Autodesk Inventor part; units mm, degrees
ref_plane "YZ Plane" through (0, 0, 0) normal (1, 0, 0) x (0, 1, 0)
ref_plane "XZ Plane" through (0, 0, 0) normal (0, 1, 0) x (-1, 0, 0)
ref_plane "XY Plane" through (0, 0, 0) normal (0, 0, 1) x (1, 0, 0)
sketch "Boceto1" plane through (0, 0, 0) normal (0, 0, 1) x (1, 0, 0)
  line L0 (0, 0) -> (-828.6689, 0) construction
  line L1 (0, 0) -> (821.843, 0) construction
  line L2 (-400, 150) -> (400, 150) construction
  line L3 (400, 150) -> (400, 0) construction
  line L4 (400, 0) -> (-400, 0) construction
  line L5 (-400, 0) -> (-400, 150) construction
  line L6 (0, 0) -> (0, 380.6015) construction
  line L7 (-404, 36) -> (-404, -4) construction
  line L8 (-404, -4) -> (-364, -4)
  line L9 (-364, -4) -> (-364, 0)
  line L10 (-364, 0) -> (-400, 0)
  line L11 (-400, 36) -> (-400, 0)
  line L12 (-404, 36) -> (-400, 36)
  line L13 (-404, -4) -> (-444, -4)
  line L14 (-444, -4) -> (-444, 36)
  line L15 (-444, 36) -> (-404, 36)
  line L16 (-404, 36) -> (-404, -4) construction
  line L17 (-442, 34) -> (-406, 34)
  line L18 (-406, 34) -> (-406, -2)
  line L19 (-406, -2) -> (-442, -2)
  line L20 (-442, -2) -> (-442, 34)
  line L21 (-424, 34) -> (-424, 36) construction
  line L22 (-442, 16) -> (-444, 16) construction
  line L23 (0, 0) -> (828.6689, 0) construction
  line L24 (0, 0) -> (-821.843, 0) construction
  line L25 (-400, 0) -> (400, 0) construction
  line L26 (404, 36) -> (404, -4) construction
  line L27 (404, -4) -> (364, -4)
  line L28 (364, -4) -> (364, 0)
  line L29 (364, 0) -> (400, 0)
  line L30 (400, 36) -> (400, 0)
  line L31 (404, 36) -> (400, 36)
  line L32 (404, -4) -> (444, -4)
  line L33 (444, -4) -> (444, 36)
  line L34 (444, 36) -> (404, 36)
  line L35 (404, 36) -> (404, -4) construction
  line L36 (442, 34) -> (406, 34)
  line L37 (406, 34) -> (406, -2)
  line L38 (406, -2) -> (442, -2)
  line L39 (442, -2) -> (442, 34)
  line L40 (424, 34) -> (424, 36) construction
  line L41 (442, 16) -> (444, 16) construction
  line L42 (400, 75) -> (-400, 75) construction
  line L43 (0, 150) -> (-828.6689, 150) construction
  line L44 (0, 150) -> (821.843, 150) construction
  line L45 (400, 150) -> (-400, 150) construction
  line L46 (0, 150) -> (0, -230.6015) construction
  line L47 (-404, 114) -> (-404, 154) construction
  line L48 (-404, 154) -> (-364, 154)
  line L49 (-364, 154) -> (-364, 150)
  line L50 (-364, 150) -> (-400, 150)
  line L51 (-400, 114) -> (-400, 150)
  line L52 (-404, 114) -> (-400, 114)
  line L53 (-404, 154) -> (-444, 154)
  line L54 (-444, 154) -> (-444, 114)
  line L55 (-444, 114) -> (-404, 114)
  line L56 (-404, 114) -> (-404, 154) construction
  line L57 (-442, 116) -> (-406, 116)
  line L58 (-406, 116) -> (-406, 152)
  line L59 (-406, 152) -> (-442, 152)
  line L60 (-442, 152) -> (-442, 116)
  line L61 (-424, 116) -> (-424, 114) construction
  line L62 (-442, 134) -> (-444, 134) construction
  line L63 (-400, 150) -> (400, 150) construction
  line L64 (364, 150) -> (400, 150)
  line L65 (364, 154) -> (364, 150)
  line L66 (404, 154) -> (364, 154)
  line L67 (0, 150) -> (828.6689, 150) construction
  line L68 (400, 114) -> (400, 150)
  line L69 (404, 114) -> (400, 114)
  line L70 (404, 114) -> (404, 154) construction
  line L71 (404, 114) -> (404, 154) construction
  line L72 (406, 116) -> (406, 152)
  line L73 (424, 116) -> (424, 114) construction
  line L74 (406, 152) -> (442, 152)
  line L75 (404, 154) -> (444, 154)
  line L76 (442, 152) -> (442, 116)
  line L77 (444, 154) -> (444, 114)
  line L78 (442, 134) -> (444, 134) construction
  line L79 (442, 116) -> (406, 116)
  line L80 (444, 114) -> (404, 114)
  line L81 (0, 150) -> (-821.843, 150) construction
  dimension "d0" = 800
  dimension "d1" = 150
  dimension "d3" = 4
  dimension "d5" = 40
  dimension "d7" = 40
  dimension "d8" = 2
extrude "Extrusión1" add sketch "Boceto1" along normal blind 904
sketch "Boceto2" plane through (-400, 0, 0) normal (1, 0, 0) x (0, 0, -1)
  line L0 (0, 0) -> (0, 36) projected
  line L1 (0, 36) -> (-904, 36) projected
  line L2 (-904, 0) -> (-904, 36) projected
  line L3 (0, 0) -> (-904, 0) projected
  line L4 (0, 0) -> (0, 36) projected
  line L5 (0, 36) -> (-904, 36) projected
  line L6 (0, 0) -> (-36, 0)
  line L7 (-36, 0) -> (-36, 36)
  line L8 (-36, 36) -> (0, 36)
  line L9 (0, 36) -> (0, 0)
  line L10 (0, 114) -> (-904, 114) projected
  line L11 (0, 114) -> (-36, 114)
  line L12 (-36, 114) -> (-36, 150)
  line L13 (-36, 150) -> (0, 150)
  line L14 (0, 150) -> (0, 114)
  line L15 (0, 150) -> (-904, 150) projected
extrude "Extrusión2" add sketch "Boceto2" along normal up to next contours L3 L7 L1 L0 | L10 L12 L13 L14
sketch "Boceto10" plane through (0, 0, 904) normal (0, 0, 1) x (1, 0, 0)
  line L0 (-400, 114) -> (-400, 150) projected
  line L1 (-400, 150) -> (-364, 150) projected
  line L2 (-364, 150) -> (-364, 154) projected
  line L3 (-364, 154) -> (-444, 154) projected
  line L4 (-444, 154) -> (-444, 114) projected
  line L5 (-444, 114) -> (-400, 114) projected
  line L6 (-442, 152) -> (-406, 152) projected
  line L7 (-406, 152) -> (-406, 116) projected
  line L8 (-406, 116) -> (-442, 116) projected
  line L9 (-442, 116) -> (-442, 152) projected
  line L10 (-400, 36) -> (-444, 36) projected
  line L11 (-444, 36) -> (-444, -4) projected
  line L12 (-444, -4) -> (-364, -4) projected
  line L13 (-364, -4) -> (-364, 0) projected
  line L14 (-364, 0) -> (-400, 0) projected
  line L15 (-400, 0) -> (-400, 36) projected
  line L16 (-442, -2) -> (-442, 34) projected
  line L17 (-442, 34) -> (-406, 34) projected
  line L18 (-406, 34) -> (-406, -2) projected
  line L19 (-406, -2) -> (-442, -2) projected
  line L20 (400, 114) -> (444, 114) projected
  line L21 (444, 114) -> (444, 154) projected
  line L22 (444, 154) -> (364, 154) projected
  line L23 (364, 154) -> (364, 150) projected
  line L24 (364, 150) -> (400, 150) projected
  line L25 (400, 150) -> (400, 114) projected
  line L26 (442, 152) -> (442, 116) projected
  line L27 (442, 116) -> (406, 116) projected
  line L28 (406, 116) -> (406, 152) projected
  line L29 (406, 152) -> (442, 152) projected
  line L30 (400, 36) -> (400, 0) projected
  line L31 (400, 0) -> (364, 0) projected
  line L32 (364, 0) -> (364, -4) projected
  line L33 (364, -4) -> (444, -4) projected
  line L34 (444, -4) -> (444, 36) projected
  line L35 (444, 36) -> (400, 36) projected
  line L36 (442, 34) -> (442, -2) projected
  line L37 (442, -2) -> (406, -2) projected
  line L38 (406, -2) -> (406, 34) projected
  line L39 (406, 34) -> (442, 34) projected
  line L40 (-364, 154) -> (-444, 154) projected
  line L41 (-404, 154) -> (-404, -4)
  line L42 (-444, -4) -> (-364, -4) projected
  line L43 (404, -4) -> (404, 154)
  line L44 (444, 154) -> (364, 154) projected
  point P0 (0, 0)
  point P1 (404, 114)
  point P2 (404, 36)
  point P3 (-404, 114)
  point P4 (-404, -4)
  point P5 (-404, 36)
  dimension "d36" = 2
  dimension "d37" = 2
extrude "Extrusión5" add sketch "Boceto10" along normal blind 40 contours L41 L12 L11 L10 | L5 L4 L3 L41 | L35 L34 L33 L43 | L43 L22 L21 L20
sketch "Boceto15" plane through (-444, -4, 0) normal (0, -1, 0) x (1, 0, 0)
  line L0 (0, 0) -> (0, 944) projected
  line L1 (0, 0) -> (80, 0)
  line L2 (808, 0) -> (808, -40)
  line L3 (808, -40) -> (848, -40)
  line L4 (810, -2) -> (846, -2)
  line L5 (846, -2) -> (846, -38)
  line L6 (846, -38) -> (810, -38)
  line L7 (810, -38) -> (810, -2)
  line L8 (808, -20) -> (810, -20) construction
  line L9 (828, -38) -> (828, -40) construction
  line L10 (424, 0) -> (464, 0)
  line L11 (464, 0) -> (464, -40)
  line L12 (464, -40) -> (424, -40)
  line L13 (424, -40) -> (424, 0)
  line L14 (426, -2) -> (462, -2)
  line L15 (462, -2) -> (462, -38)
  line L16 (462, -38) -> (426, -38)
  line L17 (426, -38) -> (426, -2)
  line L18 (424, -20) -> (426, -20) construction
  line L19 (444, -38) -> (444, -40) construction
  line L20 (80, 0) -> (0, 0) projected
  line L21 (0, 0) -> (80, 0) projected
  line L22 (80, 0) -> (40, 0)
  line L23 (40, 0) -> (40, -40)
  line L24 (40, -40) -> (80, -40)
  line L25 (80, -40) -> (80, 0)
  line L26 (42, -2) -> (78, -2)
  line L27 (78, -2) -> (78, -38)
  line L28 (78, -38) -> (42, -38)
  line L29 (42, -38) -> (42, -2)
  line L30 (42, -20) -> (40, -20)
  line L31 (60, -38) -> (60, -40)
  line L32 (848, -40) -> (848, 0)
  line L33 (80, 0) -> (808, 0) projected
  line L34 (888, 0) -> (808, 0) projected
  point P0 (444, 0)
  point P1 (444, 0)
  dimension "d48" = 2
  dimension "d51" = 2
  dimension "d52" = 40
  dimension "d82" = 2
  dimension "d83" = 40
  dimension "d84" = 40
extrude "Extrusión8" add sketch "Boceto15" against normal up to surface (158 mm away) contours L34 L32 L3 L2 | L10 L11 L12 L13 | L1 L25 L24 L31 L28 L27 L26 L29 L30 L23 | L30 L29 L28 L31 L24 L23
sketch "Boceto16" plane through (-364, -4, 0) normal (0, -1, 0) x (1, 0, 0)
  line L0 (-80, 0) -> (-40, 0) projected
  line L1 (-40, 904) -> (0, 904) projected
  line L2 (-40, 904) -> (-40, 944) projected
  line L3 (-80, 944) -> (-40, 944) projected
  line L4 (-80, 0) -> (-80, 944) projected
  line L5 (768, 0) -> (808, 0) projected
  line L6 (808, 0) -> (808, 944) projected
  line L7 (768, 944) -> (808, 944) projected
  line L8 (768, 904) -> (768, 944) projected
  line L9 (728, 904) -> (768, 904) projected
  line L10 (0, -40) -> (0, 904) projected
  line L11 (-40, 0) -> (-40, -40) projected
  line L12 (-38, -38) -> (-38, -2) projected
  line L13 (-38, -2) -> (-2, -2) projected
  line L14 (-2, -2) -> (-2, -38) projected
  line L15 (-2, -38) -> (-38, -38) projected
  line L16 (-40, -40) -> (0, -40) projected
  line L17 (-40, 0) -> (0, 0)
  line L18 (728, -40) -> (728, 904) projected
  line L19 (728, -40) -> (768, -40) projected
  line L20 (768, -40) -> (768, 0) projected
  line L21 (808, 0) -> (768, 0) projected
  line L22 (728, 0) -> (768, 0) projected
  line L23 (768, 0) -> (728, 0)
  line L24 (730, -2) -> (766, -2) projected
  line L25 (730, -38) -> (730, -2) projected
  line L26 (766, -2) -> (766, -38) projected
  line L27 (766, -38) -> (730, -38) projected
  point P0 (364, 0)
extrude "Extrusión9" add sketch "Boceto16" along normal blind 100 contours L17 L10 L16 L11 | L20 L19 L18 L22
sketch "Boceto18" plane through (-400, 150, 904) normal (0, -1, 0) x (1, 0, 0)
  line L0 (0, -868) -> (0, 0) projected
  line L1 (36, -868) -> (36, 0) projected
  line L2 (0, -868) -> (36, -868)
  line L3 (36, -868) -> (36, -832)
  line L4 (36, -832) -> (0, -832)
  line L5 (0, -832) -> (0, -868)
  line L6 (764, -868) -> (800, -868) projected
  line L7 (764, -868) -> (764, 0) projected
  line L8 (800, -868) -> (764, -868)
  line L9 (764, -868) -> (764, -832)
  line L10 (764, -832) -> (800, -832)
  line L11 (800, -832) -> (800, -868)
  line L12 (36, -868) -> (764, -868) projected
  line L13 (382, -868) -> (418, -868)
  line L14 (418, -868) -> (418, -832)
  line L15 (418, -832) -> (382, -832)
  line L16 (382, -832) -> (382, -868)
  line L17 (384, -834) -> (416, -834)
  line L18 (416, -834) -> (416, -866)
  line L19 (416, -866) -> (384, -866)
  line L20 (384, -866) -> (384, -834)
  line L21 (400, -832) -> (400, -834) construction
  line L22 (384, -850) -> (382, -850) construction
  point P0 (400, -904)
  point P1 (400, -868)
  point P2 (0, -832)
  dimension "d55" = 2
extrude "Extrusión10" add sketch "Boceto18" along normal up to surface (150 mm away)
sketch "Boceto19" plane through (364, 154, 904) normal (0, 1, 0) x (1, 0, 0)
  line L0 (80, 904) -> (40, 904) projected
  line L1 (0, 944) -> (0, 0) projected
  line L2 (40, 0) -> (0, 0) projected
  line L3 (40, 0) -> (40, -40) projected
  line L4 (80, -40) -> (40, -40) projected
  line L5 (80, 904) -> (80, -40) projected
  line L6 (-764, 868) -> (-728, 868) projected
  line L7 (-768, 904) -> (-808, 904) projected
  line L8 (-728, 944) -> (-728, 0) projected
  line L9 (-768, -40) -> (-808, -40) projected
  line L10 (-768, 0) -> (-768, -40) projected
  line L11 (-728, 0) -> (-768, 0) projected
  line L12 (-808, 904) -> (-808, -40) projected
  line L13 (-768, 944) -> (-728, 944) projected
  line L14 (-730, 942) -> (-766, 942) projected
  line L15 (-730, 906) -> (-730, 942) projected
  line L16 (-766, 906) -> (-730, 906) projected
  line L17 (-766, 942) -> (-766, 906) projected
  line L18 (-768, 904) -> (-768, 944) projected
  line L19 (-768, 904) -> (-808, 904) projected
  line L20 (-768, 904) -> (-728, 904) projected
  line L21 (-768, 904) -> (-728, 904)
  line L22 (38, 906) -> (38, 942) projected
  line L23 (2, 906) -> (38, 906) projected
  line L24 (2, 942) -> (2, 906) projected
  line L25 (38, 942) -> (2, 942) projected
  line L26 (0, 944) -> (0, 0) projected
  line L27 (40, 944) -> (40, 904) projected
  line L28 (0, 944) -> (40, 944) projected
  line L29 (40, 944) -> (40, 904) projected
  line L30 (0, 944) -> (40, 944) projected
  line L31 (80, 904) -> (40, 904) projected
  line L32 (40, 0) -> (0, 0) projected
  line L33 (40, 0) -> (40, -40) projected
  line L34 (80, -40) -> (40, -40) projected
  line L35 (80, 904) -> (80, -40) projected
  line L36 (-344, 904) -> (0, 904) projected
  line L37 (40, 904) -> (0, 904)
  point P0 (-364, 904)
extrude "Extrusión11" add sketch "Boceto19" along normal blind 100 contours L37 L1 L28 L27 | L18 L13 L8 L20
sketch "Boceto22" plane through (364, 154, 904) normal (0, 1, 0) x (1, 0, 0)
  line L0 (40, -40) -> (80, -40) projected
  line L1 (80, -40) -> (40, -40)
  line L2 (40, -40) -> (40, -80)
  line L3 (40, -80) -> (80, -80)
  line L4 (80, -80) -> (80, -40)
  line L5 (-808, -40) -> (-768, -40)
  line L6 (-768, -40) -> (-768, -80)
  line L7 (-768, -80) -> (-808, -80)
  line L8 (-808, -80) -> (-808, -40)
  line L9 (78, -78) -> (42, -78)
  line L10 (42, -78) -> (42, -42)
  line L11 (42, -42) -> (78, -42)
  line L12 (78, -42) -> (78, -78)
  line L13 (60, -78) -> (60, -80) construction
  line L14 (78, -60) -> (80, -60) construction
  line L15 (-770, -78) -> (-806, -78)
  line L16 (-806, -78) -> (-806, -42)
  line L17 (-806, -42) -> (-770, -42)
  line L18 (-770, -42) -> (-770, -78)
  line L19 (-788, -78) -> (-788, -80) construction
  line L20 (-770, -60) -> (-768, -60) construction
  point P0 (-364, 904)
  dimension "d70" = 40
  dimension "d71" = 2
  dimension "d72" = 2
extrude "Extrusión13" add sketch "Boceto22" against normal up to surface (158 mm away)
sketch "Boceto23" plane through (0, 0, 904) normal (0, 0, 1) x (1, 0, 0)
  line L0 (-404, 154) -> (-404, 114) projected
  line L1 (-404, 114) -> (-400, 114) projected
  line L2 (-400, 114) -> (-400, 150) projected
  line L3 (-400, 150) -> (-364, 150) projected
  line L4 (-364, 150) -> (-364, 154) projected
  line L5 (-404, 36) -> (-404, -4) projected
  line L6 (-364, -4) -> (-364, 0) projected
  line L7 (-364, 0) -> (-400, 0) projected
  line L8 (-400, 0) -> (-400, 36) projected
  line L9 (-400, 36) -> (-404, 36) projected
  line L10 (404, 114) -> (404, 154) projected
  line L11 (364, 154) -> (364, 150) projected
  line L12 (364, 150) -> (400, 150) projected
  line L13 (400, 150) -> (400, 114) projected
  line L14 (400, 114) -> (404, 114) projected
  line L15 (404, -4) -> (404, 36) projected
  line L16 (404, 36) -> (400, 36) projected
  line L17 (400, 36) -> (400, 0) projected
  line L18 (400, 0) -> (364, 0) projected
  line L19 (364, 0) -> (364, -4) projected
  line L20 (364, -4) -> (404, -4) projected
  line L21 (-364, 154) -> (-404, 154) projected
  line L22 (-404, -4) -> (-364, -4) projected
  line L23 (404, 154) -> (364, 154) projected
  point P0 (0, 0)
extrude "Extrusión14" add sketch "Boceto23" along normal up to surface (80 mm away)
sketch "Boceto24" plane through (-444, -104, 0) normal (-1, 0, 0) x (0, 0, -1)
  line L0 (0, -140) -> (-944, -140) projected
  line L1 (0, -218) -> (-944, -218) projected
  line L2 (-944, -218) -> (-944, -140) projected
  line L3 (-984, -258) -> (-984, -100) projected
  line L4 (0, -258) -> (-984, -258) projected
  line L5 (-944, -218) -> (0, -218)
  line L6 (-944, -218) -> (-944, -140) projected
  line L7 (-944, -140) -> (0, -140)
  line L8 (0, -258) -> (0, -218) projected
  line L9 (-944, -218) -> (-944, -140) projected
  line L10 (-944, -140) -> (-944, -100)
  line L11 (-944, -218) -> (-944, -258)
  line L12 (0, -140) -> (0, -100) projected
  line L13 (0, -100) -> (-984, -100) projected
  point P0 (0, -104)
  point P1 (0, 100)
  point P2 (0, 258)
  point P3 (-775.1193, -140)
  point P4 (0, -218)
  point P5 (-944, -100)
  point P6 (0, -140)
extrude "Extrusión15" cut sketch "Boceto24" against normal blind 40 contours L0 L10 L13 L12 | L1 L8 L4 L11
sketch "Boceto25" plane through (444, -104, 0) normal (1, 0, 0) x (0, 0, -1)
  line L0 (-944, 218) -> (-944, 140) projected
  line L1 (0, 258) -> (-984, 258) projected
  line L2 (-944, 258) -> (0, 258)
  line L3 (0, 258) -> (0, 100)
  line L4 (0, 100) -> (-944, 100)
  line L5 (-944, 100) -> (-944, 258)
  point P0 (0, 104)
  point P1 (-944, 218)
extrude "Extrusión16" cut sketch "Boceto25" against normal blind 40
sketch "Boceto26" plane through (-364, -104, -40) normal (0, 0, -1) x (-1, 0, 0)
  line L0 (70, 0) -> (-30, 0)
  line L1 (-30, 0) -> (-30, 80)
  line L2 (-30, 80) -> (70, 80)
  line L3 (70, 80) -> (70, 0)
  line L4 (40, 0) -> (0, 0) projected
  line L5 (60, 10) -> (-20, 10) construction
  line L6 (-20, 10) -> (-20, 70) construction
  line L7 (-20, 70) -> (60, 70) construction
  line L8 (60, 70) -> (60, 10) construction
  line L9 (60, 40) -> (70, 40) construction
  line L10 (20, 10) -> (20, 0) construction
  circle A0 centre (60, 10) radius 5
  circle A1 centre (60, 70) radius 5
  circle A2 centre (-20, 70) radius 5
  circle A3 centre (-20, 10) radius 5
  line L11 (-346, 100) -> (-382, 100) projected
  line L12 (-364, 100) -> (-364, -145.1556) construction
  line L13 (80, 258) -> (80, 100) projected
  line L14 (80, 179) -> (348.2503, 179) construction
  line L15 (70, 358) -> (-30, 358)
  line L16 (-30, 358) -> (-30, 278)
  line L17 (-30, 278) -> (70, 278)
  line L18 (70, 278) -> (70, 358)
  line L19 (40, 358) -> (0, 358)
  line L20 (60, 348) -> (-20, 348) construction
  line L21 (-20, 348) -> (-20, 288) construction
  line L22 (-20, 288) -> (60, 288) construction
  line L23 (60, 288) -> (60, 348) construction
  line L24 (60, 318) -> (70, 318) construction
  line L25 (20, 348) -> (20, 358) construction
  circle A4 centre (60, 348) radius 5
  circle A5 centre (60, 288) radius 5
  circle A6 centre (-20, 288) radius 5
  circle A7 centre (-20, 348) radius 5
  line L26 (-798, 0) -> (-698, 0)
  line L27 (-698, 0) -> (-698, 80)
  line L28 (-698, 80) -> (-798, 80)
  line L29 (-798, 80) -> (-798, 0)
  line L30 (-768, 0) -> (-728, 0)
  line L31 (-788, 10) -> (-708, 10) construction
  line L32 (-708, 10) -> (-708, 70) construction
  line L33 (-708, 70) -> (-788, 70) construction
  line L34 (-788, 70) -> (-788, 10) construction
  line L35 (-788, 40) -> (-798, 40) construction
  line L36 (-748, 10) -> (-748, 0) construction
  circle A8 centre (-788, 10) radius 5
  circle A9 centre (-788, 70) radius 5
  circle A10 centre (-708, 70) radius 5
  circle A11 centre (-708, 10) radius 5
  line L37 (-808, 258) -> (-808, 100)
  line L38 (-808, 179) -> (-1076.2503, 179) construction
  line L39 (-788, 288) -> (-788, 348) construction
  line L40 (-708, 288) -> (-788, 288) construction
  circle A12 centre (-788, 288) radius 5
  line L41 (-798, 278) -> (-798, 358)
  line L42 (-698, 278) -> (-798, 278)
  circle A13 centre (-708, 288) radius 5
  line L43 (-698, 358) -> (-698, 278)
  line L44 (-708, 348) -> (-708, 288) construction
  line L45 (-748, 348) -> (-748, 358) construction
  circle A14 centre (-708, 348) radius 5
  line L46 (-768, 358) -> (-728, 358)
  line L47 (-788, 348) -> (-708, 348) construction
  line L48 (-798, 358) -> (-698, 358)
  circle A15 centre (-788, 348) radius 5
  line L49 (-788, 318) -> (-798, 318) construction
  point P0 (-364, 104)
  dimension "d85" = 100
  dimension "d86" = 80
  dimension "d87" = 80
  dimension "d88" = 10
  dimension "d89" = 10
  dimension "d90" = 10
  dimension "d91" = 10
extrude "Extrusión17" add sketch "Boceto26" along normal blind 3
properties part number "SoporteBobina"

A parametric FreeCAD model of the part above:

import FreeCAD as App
import Part
import Sketcher
from FreeCAD import Vector


def add_polygon(sketch, points):
    """Adds a closed chain of lines whose ends are joined by coincident constraints."""
    first, n = sketch.GeometryCount, len(points)
    for a, b in zip(points, points[1:] + points[:1]):
        sketch.addGeometry(Part.LineSegment(App.Vector(*a, 0), App.Vector(*b, 0)), False)
    for i in range(n):
        sketch.addConstraint(Sketcher.Constraint("Coincident", first + i, 2, first + (i + 1) % n, 1))

doc = App.newDocument("Part")
params = doc.addObject("Spreadsheet::Sheet", "Params")
for row, (alias, value) in enumerate([
    ("sketch1_height", "4 mm"),
    ("sketch1_height2", "40 mm"),
    ("sketch1_width", "80 mm"),
    ("pad1_length", "904 mm"),
    ("sketch2_width", "36 mm"),
    ("pad2_length", "800 mm"),
    ("sketch3_width", "40 mm"),
    ("pad3_length", "40 mm"),
    ("sketch4_width", "40 mm"),
    ("pad4_length", "158 mm"),
    ("sketch5_width", "40 mm"),
    ("sketch5_width2", "36 mm"),
    ("pad5_length", "100 mm"),
    ("sketch6_width", "36 mm"),
    ("pad6_length", "150 mm"),
    ("sketch7_width", "40 mm"),
    ("sketch7_width2", "36 mm"),
    ("pad7_length", "100 mm"),
    ("sketch8_width", "40 mm"),
    ("pad8_length", "158 mm"),
    ("sketch9_width", "40 mm"),
    ("sketch9_width2", "4 mm"),
    ("pad9_length", "80 mm"),
    ("sketch10_width", "40 mm"),
    ("sketch10_height", "944 mm"),
    ("pocket1_length", "40 mm"),
    ("sketch11_width", "158 mm"),
    ("sketch11_height", "944 mm"),
    ("pocket2_length", "40 mm"),
    ("sketch12_diameter", "10 mm"),
    ("sketch12_width", "100 mm"),
    ("sketch12_height", "80 mm"),
    ("pad10_length", "3 mm"),
], start=1):
    params.set(f"A{row}", alias)
    params.set(f"B{row}", "=" + value)
    params.setAlias(f"B{row}", alias)

body = doc.addObject("PartDesign::Body", "Body")
body.AllowCompound = True

# Sketch on XY plane
sketch1 = body.newObject("Sketcher::SketchObject", "Sketch")
sketch1.AttachmentSupport = (doc.getObject("XY_Plane"), [""])
sketch1.MapMode = "FlatFace"
add_polygon(sketch1, [(-444, -4), (-364, -4), (-364, 0), (-400, 0), (-400, 36), (-444, 36)])  # lines 0-5
add_polygon(sketch1, [(-442, -2), (-442, 34), (-406, 34), (-406, -2)])  # lines 6-9
add_polygon(sketch1, [(364, -4), (444, -4), (444, 36), (400, 36), (400, 0), (364, 0)])  # lines 10-15
add_polygon(sketch1, [(406, 34), (442, 34), (442, -2), (406, -2)])  # lines 16-19
add_polygon(sketch1, [(-364, 154), (-444, 154), (-444, 114), (-400, 114), (-400, 150), (-364, 150)])  # lines 20-25
add_polygon(sketch1, [(-406, 116), (-442, 116), (-442, 152), (-406, 152)])  # lines 26-29
add_polygon(sketch1, [(364, 154), (364, 150), (400, 150), (400, 114), (444, 114), (444, 154)])  # lines 30-35
add_polygon(sketch1, [(442, 116), (406, 116), (406, 152), (442, 152)])  # lines 36-39
sketch1.addConstraint([
    Sketcher.Constraint("Horizontal", 0),
    Sketcher.Constraint("Vertical", 1),
    Sketcher.Constraint("Horizontal", 2),
    Sketcher.Constraint("Vertical", 3),
    Sketcher.Constraint("Horizontal", 4),
    Sketcher.Constraint("Vertical", 5),
    Sketcher.Constraint("Vertical", 6),
    Sketcher.Constraint("Horizontal", 7),
    Sketcher.Constraint("Vertical", 8),
    Sketcher.Constraint("Horizontal", 9),
    Sketcher.Constraint("Horizontal", 10),
    Sketcher.Constraint("Vertical", 11),
    Sketcher.Constraint("Horizontal", 12),
    Sketcher.Constraint("Vertical", 13),
    Sketcher.Constraint("Horizontal", 14),
    Sketcher.Constraint("Vertical", 15),
    Sketcher.Constraint("Horizontal", 16),
    Sketcher.Constraint("Vertical", 17),
    Sketcher.Constraint("Horizontal", 18),
    Sketcher.Constraint("Vertical", 19),
    Sketcher.Constraint("Horizontal", 20),
    Sketcher.Constraint("Vertical", 21),
    Sketcher.Constraint("Horizontal", 22),
    Sketcher.Constraint("Vertical", 23),
    Sketcher.Constraint("Horizontal", 24),
    Sketcher.Constraint("Vertical", 25),
    Sketcher.Constraint("Horizontal", 26),
    Sketcher.Constraint("Vertical", 27),
    Sketcher.Constraint("Horizontal", 28),
    Sketcher.Constraint("Vertical", 29),
    Sketcher.Constraint("Vertical", 30),
    Sketcher.Constraint("Horizontal", 31),
    Sketcher.Constraint("Vertical", 32),
    Sketcher.Constraint("Horizontal", 33),
    Sketcher.Constraint("Vertical", 34),
    Sketcher.Constraint("Horizontal", 35),
    Sketcher.Constraint("Horizontal", 36),
    Sketcher.Constraint("Vertical", 37),
    Sketcher.Constraint("Horizontal", 38),
    Sketcher.Constraint("Vertical", 39),
    Sketcher.Constraint("Symmetric", 2, 2, 13, 2, -1, 1),
    Sketcher.Constraint("Symmetric", 5, 2, 10, 2, -2),
    Sketcher.Constraint("Symmetric", 1, 2, 14, 2, -2),
    Sketcher.Constraint("Symmetric", 6, 2, 16, 2, -2),
    Sketcher.Constraint("Symmetric", 8, 2, 18, 2, -2),
    Sketcher.Constraint("Symmetric", 24, 2, 30, 2, -2),
    Sketcher.Constraint("Symmetric", 22, 2, 32, 2, -2),
    Sketcher.Constraint("Symmetric", 20, 2, 34, 2, -2),
    Sketcher.Constraint("Symmetric", 29, 2, 36, 2, -2),
    Sketcher.Constraint("Symmetric", 27, 2, 38, 2, -2),
    Sketcher.Constraint("Horizontal", 4, 2, 11, 2),
    Sketcher.Constraint("Vertical", 5, 2, 20, 2),
    Sketcher.Constraint("Vertical", 3, 2, 22, 2),
    Sketcher.Constraint("Vertical", 1, 2, 24, 2),
    Sketcher.Constraint("Vertical", 9, 2, 26, 2),
    Sketcher.Constraint("Vertical", 8, 2, 28, 2),
    Sketcher.Constraint("Equal", 2, 7),
    Sketcher.Constraint("Equal", 38, 3),
    Sketcher.Constraint("Equal", 3, 6),
    Sketcher.Constraint("Equal", 11, 21),
    Sketcher.Constraint("Equal", 19, 23),
    Sketcher.Constraint("Equal", 23, 27),
    Sketcher.Constraint("DistanceY", 1, 1, 1, 2, 4.0),
    Sketcher.Constraint("DistanceY", 5, 2, 5, 1, 40.0),
    Sketcher.Constraint("DistanceY", 8, 2, -1, 1, 2.0),
    Sketcher.Constraint("DistanceY", -1, 1, 23, 2, 150.0),
    Sketcher.Constraint("DistanceX", 4, 2, 6, 2, 2.0),
    Sketcher.Constraint("DistanceX", 3, 2, 12, 2, 800.0),
    Sketcher.Constraint("DistanceY", 21, 2, 26, 2, 2.0),
    Sketcher.Constraint("DistanceX", 0, 1, 0, 2, 80.0),
])
sketch1.setExpression("Constraints[102]", "Params.sketch1_height")
sketch1.setExpression("Constraints[103]", "Params.sketch1_height2")
sketch1.setExpression("Constraints[109]", "Params.sketch1_width")
pad1 = body.newObject("PartDesign::Pad", "Pad")
pad1.Profile = sketch1
pad1.setExpression("Length", "Params.pad1_length")

# Sketch on YZ plane
sketch2 = body.newObject("Sketcher::SketchObject", "Sketch001")
sketch2.AttachmentSupport = (doc.getObject("YZ_Plane"), [""])
sketch2.MapMode = "FlatFace"
sketch2.AttachmentOffset = App.Placement(Vector(0, 0, -400), App.Rotation())
add_polygon(sketch2, [(0, 36), (0, 0), (36, 0), (36, 36)])  # lines 0-3
add_polygon(sketch2, [(114, 36), (114, 0), (150, 0), (150, 36)])  # lines 4-7
sketch2.addConstraint([
    Sketcher.Constraint("Vertical", 0),
    Sketcher.Constraint("Horizontal", 1),
    Sketcher.Constraint("Vertical", 2),
    Sketcher.Constraint("Horizontal", 3),
    Sketcher.Constraint("Vertical", 4),
    Sketcher.Constraint("Horizontal", 5),
    Sketcher.Constraint("Vertical", 6),
    Sketcher.Constraint("Horizontal", 7),
    Sketcher.Constraint("Coincident", 0, 2, -1, 1),
    Sketcher.Constraint("PointOnObject", 4, 2, -1),
    Sketcher.Constraint("Horizontal", 3, 2, 6, 2),
    Sketcher.Constraint("Equal", 3, 5),
    Sketcher.Constraint("Equal", 7, 0),
    Sketcher.Constraint("DistanceX", 1, 1, 1, 2, 36.0),
    Sketcher.Constraint("DistanceX", -1, 1, 4, 2, 114.0),
])
sketch2.setExpression("Constraints[21]", "Params.sketch2_width")
pad2 = body.newObject("PartDesign::Pad", "Pad001")
pad2.Profile = sketch2
pad2.setExpression("Length", "Params.pad2_length")

# Sketch on XY plane
sketch3 = body.newObject("Sketcher::SketchObject", "Sketch002")
sketch3.AttachmentSupport = (doc.getObject("XY_Plane"), [""])
sketch3.MapMode = "FlatFace"
sketch3.AttachmentOffset = App.Placement(Vector(0, 0, 904), App.Rotation())
add_polygon(sketch3, [(-404, -4), (-404, 36), (-444, 36), (-444, -4)])  # lines 0-3
add_polygon(sketch3, [(-406, -2), (-442, -2), (-442, 34), (-406, 34)])  # lines 4-7
add_polygon(sketch3, [(-444, 114), (-404, 114), (-404, 154), (-444, 154)])  # lines 8-11
add_polygon(sketch3, [(-442, 116), (-442, 152), (-406, 152), (-406, 116)])  # lines 12-15
add_polygon(sketch3, [(444, 36), (404, 36), (404, -4), (444, -4)])  # lines 16-19
add_polygon(sketch3, [(406, 34), (442, 34), (442, -2), (406, -2)])  # lines 20-23
add_polygon(sketch3, [(404, 154), (404, 114), (444, 114), (444, 154)])  # lines 24-27
add_polygon(sketch3, [(406, 152), (442, 152), (442, 116), (406, 116)])  # lines 28-31
sketch3.addConstraint([
    Sketcher.Constraint("Vertical", 0),
    Sketcher.Constraint("Horizontal", 1),
    Sketcher.Constraint("Vertical", 2),
    Sketcher.Constraint("Horizontal", 3),
    Sketcher.Constraint("Horizontal", 4),
    Sketcher.Constraint("Vertical", 5),
    Sketcher.Constraint("Horizontal", 6),
    Sketcher.Constraint("Vertical", 7),
    Sketcher.Constraint("Horizontal", 8),
    Sketcher.Constraint("Vertical", 9),
    Sketcher.Constraint("Horizontal", 10),
    Sketcher.Constraint("Vertical", 11),
    Sketcher.Constraint("Vertical", 12),
    Sketcher.Constraint("Horizontal", 13),
    Sketcher.Constraint("Vertical", 14),
    Sketcher.Constraint("Horizontal", 15),
    Sketcher.Constraint("Horizontal", 16),
    Sketcher.Constraint("Vertical", 17),
    Sketcher.Constraint("Horizontal", 18),
    Sketcher.Constraint("Vertical", 19),
    Sketcher.Constraint("Horizontal", 20),
    Sketcher.Constraint("Vertical", 21),
    Sketcher.Constraint("Horizontal", 22),
    Sketcher.Constraint("Vertical", 23),
    Sketcher.Constraint("Vertical", 24),
    Sketcher.Constraint("Horizontal", 25),
    Sketcher.Constraint("Vertical", 26),
    Sketcher.Constraint("Horizontal", 27),
    Sketcher.Constraint("Horizontal", 28),
    Sketcher.Constraint("Vertical", 29),
    Sketcher.Constraint("Horizontal", 30),
    Sketcher.Constraint("Vertical", 31),
    Sketcher.Constraint("Symmetric", 0, 2, 16, 2, -2),
    Sketcher.Constraint("Symmetric", 2, 2, 18, 2, -2),
    Sketcher.Constraint("Symmetric", 5, 2, 20, 2, -2),
    Sketcher.Constraint("Symmetric", 7, 2, 22, 2, -2),
    Sketcher.Constraint("Symmetric", 8, 2, 24, 2, -2),
    Sketcher.Constraint("Symmetric", 10, 2, 26, 2, -2),
    Sketcher.Constraint("Symmetric", 12, 2, 28, 2, -2),
    Sketcher.Constraint("Symmetric", 14, 2, 30, 2, -2),
    Sketcher.Constraint("Vertical", 3, 2, 8, 2),
    Sketcher.Constraint("Vertical", 2, 2, 10, 2),
    Sketcher.Constraint("Vertical", 5, 2, 12, 2),
    Sketcher.Constraint("Vertical", 7, 2, 13, 2),
    Sketcher.Constraint("Equal", 27, 0),
    Sketcher.Constraint("Equal", 30, 5),
    Sketcher.Constraint("Equal", 2, 9),
    Sketcher.Constraint("Equal", 7, 12),
    Sketcher.Constraint("DistanceY", 4, 2, -1, 1, 2.0),
    Sketcher.Constraint("DistanceX", 2, 2, 4, 2, 2.0),
    Sketcher.Constraint("DistanceY", 2, 2, 4, 2, 2.0),
    Sketcher.Constraint("DistanceY", 5, 2, 1, 2, 2.0),
    Sketcher.Constraint("DistanceY", 12, 2, 10, 2, 2.0),
    Sketcher.Constraint("DistanceX", 1, 2, 1, 1, 40.0),
    Sketcher.Constraint("DistanceX", 0, 2, -1, 1, 404.0),
    Sketcher.Constraint("DistanceY", -1, 1, 8, 2, 114.0),
])
sketch3.setExpression("Constraints[85]", "Params.sketch3_width")
pad3 = body.newObject("PartDesign::Pad", "Pad002")
pad3.Profile = sketch3
pad3.setExpression("Length", "Params.pad3_length")

# Sketch on XZ plane
sketch4 = body.newObject("Sketcher::SketchObject", "Sketch003")
sketch4.AttachmentSupport = (doc.getObject("XZ_Plane"), [""])
sketch4.MapMode = "FlatFace"
sketch4.AttachmentOffset = App.Placement(Vector(0, 0, 4), App.Rotation())
add_polygon(sketch4, [(404, 0), (364, 0), (364, -40), (404, -40)])  # lines 0-3
add_polygon(sketch4, [(366, -38), (366, -2), (402, -2), (402, -38)])  # lines 4-7
add_polygon(sketch4, [(20, 0), (-20, 0), (-20, -40), (20, -40)])  # lines 8-11
add_polygon(sketch4, [(-18, -38), (-18, -2), (18, -2), (18, -38)])  # lines 12-15
add_polygon(sketch4, [(-364, 0), (-404, 0), (-404, -40), (-364, -40)])  # lines 16-19
add_polygon(sketch4, [(-366, -38), (-402, -38), (-402, -2), (-366, -2)])  # lines 20-23
sketch4.addConstraint([
    Sketcher.Constraint("Horizontal", 0),
    Sketcher.Constraint("Vertical", 1),
    Sketcher.Constraint("Horizontal", 2),
    Sketcher.Constraint("Vertical", 3),
    Sketcher.Constraint("Vertical", 4),
    Sketcher.Constraint("Horizontal", 5),
    Sketcher.Constraint("Vertical", 6),
    Sketcher.Constraint("Horizontal", 7),
    Sketcher.Constraint("Horizontal", 8),
    Sketcher.Constraint("Vertical", 9),
    Sketcher.Constraint("Horizontal", 10),
    Sketcher.Constraint("Vertical", 11),
    Sketcher.Constraint("Vertical", 12),
    Sketcher.Constraint("Horizontal", 13),
    Sketcher.Constraint("Vertical", 14),
    Sketcher.Constraint("Horizontal", 15),
    Sketcher.Constraint("Horizontal", 16),
    Sketcher.Constraint("Vertical", 17),
    Sketcher.Constraint("Horizontal", 18),
    Sketcher.Constraint("Vertical", 19),
    Sketcher.Constraint("Horizontal", 20),
    Sketcher.Constraint("Vertical", 21),
    Sketcher.Constraint("Horizontal", 22),
    Sketcher.Constraint("Vertical", 23),
    Sketcher.Constraint("Symmetric", 8, 2, 11, 2, -1, 1),
    Sketcher.Constraint("Symmetric", 3, 2, 16, 2, -1, 1),
    Sketcher.Constraint("Symmetric", 1, 2, 18, 2, -2),
    Sketcher.Constraint("Symmetric", 6, 2, 20, 2, -2),
    Sketcher.Constraint("Symmetric", 4, 2, 22, 2, -2),
    Sketcher.Constraint("PointOnObject", 0, 2, -1),
    Sketcher.Constraint("Horizontal", 2, 2, 9, 2),
    Sketcher.Constraint("Horizontal", 5, 2, 12, 2),
    Sketcher.Constraint("Horizontal", 7, 2, 14, 2),
    Sketcher.Constraint("Equal", 2, 8),
    Sketcher.Constraint("Equal", 7, 13),
    Sketcher.Constraint("Equal", 18, 1),
    Sketcher.Constraint("Equal", 22, 4),
    Sketcher.Constraint("DistanceX", 0, 2, 0, 1, 40.0),
    Sketcher.Constraint("DistanceY", 4, 2, -1, 1, 2.0),
    Sketcher.Constraint("DistanceX", 0, 2, 4, 2, 2.0),
    Sketcher.Constraint("DistanceX", 5, 2, 3, 2, 2.0),
    Sketcher.Constraint("DistanceX", 8, 2, 12, 2, 2.0),
    Sketcher.Constraint("DistanceX", -1, 1, 0, 2, 364.0),
])
sketch4.setExpression("Constraints[61]", "Params.sketch4_width")
pad4 = body.newObject("PartDesign::Pad", "Pad003")
pad4.Profile = sketch4
pad4.setExpression("Length", "Params.pad4_length")
pad4.Reversed = True

# Sketch on XZ plane
sketch5 = body.newObject("Sketcher::SketchObject", "Sketch004")
sketch5.AttachmentSupport = (doc.getObject("XZ_Plane"), [""])
sketch5.MapMode = "FlatFace"
sketch5.AttachmentOffset = App.Placement(Vector(0, 0, 4), App.Rotation())
add_polygon(sketch5, [(-364, 0), (-404, 0), (-404, -40), (-364, -40)])  # lines 0-3
add_polygon(sketch5, [(-366, -38), (-402, -38), (-402, -2), (-366, -2)])  # lines 4-7
add_polygon(sketch5, [(404, -40), (404, 0), (364, 0), (364, -40)])  # lines 8-11
add_polygon(sketch5, [(366, -38), (366, -2), (402, -2), (402, -38)])  # lines 12-15
sketch5.addConstraint([
    Sketcher.Constraint("Horizontal", 0),
    Sketcher.Constraint("Vertical", 1),
    Sketcher.Constraint("Horizontal", 2),
    Sketcher.Constraint("Vertical", 3),
    Sketcher.Constraint("Horizontal", 4),
    Sketcher.Constraint("Vertical", 5),
    Sketcher.Constraint("Horizontal", 6),
    Sketcher.Constraint("Vertical", 7),
    Sketcher.Constraint("Vertical", 8),
    Sketcher.Constraint("Horizontal", 9),
    Sketcher.Constraint("Vertical", 10),
    Sketcher.Constraint("Horizontal", 11),
    Sketcher.Constraint("Vertical", 12),
    Sketcher.Constraint("Horizontal", 13),
    Sketcher.Constraint("Vertical", 14),
    Sketcher.Constraint("Horizontal", 15),
    Sketcher.Constraint("Symmetric", 0, 2, 8, 2, -1, 1),
    Sketcher.Constraint("Symmetric", 3, 2, 9, 2, -2),
    Sketcher.Constraint("Symmetric", 6, 2, 12, 2, -2),
    Sketcher.Constraint("Symmetric", 4, 2, 14, 2, -2),
    Sketcher.Constraint("Horizontal", 2, 2, 10, 2),
    Sketcher.Constraint("Equal", 11, 1),
    Sketcher.Constraint("Equal", 15, 5),
    Sketcher.Constraint("DistanceX", 0, 2, 0, 1, 40.0),
    Sketcher.Constraint("DistanceX", 4, 2, 4, 1, 36.0),
    Sketcher.Constraint("DistanceX", 0, 2, -1, 1, 404.0),
    Sketcher.Constraint("DistanceX", 4, 2, -1, 1, 402.0),
    Sketcher.Constraint("DistanceY", 4, 2, -1, 1, 38.0),
])
sketch5.setExpression("Constraints[39]", "Params.sketch5_width")
sketch5.setExpression("Constraints[40]", "Params.sketch5_width2")
pad5 = body.newObject("PartDesign::Pad", "Pad004")
pad5.Profile = sketch5
pad5.setExpression("Length", "Params.pad5_length")

# Sketch on XZ plane
sketch6 = body.newObject("Sketcher::SketchObject", "Sketch005")
sketch6.AttachmentSupport = (doc.getObject("XZ_Plane"), [""])
sketch6.MapMode = "FlatFace"
sketch6.AttachmentOffset = App.Placement(Vector(0, 0, -150), App.Rotation())
add_polygon(sketch6, [(364, 72), (364, 36), (400, 36), (400, 72)])  # lines 0-3
add_polygon(sketch6, [(-18, 72), (-18, 36), (18, 36), (18, 72)])  # lines 4-7
add_polygon(sketch6, [(-16, 38), (-16, 70), (16, 70), (16, 38)])  # lines 8-11
add_polygon(sketch6, [(-400, 72), (-400, 36), (-364, 36), (-364, 72)])  # lines 12-15
sketch6.addConstraint([
    Sketcher.Constraint("Vertical", 0),
    Sketcher.Constraint("Horizontal", 1),
    Sketcher.Constraint("Vertical", 2),
    Sketcher.Constraint("Horizontal", 3),
    Sketcher.Constraint("Vertical", 4),
    Sketcher.Constraint("Horizontal", 5),
    Sketcher.Constraint("Vertical", 6),
    Sketcher.Constraint("Horizontal", 7),
    Sketcher.Constraint("Vertical", 8),
    Sketcher.Constraint("Horizontal", 9),
    Sketcher.Constraint("Vertical", 10),
    Sketcher.Constraint("Horizontal", 11),
    Sketcher.Constraint("Vertical", 12),
    Sketcher.Constraint("Horizontal", 13),
    Sketcher.Constraint("Vertical", 14),
    Sketcher.Constraint("Horizontal", 15),
    Sketcher.Constraint("Symmetric", 1, 2, 12, 2, -2),
    Sketcher.Constraint("Symmetric", 3, 2, 14, 2, -2),
    Sketcher.Constraint("Horizontal", 1, 2, 4, 2),
    Sketcher.Constraint("Horizontal", 3, 2, 6, 2),
    Sketcher.Constraint("Equal", 3, 5),
    Sketcher.Constraint("Equal", 15, 0),
    Sketcher.Constraint("Equal", 11, 8),
    Sketcher.Constraint("DistanceX", 7, 2, 8, 2, 2.0),
    Sketcher.Constraint("DistanceY", 8, 2, 7, 2, 2.0),
    Sketcher.Constraint("DistanceX", 9, 2, 6, 2, 2.0),
    Sketcher.Constraint("DistanceX", 1, 1, 1, 2, 36.0),
    Sketcher.Constraint("DistanceX", -1, 1, 0, 2, 364.0),
    Sketcher.Constraint("DistanceY", -1, 1, 0, 2, 36.0),
    Sketcher.Constraint("DistanceX", 4, 2, -1, 1, 18.0),
])
sketch6.setExpression("Constraints[42]", "Params.sketch6_width")
pad6 = body.newObject("PartDesign::Pad", "Pad005")
pad6.Profile = sketch6
pad6.setExpression("Length", "Params.pad6_length")

# Sketch on XZ plane
sketch7 = body.newObject("Sketcher::SketchObject", "Sketch006")
sketch7.AttachmentSupport = (doc.getObject("XZ_Plane"), [""])
sketch7.MapMode = "FlatFace"
sketch7.AttachmentOffset = App.Placement(Vector(0, 0, -154), App.Rotation())
add_polygon(sketch7, [(364, 0), (404, 0), (404, -40), (364, -40)])  # lines 0-3
add_polygon(sketch7, [(402, -38), (402, -2), (366, -2), (366, -38)])  # lines 4-7
add_polygon(sketch7, [(-404, -40), (-404, 0), (-364, 0), (-364, -40)])  # lines 8-11
add_polygon(sketch7, [(-402, -38), (-366, -38), (-366, -2), (-402, -2)])  # lines 12-15
sketch7.addConstraint([
    Sketcher.Constraint("Horizontal", 0),
    Sketcher.Constraint("Vertical", 1),
    Sketcher.Constraint("Horizontal", 2),
    Sketcher.Constraint("Vertical", 3),
    Sketcher.Constraint("Vertical", 4),
    Sketcher.Constraint("Horizontal", 5),
    Sketcher.Constraint("Vertical", 6),
    Sketcher.Constraint("Horizontal", 7),
    Sketcher.Constraint("Vertical", 8),
    Sketcher.Constraint("Horizontal", 9),
    Sketcher.Constraint("Vertical", 10),
    Sketcher.Constraint("Horizontal", 11),
    Sketcher.Constraint("Horizontal", 12),
    Sketcher.Constraint("Vertical", 13),
    Sketcher.Constraint("Horizontal", 14),
    Sketcher.Constraint("Vertical", 15),
    Sketcher.Constraint("Symmetric", 0, 2, 8, 2, -1, 1),
    Sketcher.Constraint("Symmetric", 3, 2, 9, 2, -2),
    Sketcher.Constraint("Symmetric", 6, 2, 12, 2, -2),
    Sketcher.Constraint("Symmetric", 4, 2, 14, 2, -2),
    Sketcher.Constraint("Horizontal", 2, 2, 10, 2),
    Sketcher.Constraint("Equal", 11, 1),
    Sketcher.Constraint("Equal", 14, 4),
    Sketcher.Constraint("DistanceX", 0, 1, 0, 2, 40.0),
    Sketcher.Constraint("DistanceX", 5, 2, 5, 1, 36.0),
    Sketcher.Constraint("DistanceX", -1, 1, 0, 2, 404.0),
    Sketcher.Constraint("DistanceX", -1, 1, 4, 2, 402.0),
    Sketcher.Constraint("DistanceY", 4, 2, -1, 1, 2.0),
])
sketch7.setExpression("Constraints[39]", "Params.sketch7_width")
sketch7.setExpression("Constraints[40]", "Params.sketch7_width2")
pad7 = body.newObject("PartDesign::Pad", "Pad006")
pad7.Profile = sketch7
pad7.setExpression("Length", "Params.pad7_length")
pad7.Reversed = True

# Sketch on XZ plane
sketch8 = body.newObject("Sketcher::SketchObject", "Sketch007")
sketch8.AttachmentSupport = (doc.getObject("XZ_Plane"), [""])
sketch8.MapMode = "FlatFace"
sketch8.AttachmentOffset = App.Placement(Vector(0, 0, -154), App.Rotation())
add_polygon(sketch8, [(444, 944), (404, 944), (404, 984), (444, 984)])  # lines 0-3
add_polygon(sketch8, [(442, 946), (442, 982), (406, 982), (406, 946)])  # lines 4-7
add_polygon(sketch8, [(-404, 944), (-444, 944), (-444, 984), (-404, 984)])  # lines 8-11
add_polygon(sketch8, [(-406, 946), (-406, 982), (-442, 982), (-442, 946)])  # lines 12-15
sketch8.addConstraint([
    Sketcher.Constraint("Horizontal", 0),
    Sketcher.Constraint("Vertical", 1),
    Sketcher.Constraint("Horizontal", 2),
    Sketcher.Constraint("Vertical", 3),
    Sketcher.Constraint("Vertical", 4),
    Sketcher.Constraint("Horizontal", 5),
    Sketcher.Constraint("Vertical", 6),
    Sketcher.Constraint("Horizontal", 7),
    Sketcher.Constraint("Horizontal", 8),
    Sketcher.Constraint("Vertical", 9),
    Sketcher.Constraint("Horizontal", 10),
    Sketcher.Constraint("Vertical", 11),
    Sketcher.Constraint("Vertical", 12),
    Sketcher.Constraint("Horizontal", 13),
    Sketcher.Constraint("Vertical", 14),
    Sketcher.Constraint("Horizontal", 15),
    Sketcher.Constraint("Symmetric", 3, 2, 8, 2, -2),
    Sketcher.Constraint("Symmetric", 1, 2, 10, 2, -2),
    Sketcher.Constraint("Symmetric", 5, 2, 12, 2, -2),
    Sketcher.Constraint("Symmetric", 7, 2, 14, 2, -2),
    Sketcher.Constraint("Equal", 10, 1),
    Sketcher.Constraint("Equal", 15, 4),
    Sketcher.Constraint("DistanceX", 0, 2, 0, 1, 40.0),
    Sketcher.Constraint("DistanceX", 4, 2, 2, 2, 2.0),
    Sketcher.Constraint("DistanceY", 4, 2, 2, 2, 2.0),
    Sketcher.Constraint("DistanceX", 1, 2, 5, 2, 2.0),
    Sketcher.Constraint("DistanceX", -1, 1, 0, 2, 404.0),
    Sketcher.Constraint("DistanceY", -1, 1, 0, 2, 944.0),
])
sketch8.setExpression("Constraints[38]", "Params.sketch8_width")
pad8 = body.newObject("PartDesign::Pad", "Pad007")
pad8.Profile = sketch8
pad8.setExpression("Length", "Params.pad8_length")

# Sketch on XY plane
sketch9 = body.newObject("Sketcher::SketchObject", "Sketch008")
sketch9.AttachmentSupport = (doc.getObject("XY_Plane"), [""])
sketch9.MapMode = "FlatFace"
sketch9.AttachmentOffset = App.Placement(Vector(0, 0, 904), App.Rotation())
add_polygon(sketch9, [(-364, 154), (-404, 154), (-404, 114), (-400, 114), (-400, 150), (-364, 150)])  # lines 0-5
add_polygon(sketch9, [(-400, 36), (-404, 36), (-404, -4), (-364, -4), (-364, 0), (-400, 0)])  # lines 6-11
add_polygon(sketch9, [(400, 114), (404, 114), (404, 154), (364, 154), (364, 150), (400, 150)])  # lines 12-17
add_polygon(sketch9, [(364, -4), (404, -4), (404, 36), (400, 36), (400, 0), (364, 0)])  # lines 18-23
sketch9.addConstraint([
    Sketcher.Constraint("Horizontal", 0),
    Sketcher.Constraint("Vertical", 1),
    Sketcher.Constraint("Horizontal", 2),
    Sketcher.Constraint("Vertical", 3),
    Sketcher.Constraint("Horizontal", 4),
    Sketcher.Constraint("Vertical", 5),
    Sketcher.Constraint("Horizontal", 6),
    Sketcher.Constraint("Vertical", 7),
    Sketcher.Constraint("Horizontal", 8),
    Sketcher.Constraint("Vertical", 9),
    Sketcher.Constraint("Horizontal", 10),
    Sketcher.Constraint("Vertical", 11),
    Sketcher.Constraint("Horizontal", 12),
    Sketcher.Constraint("Vertical", 13),
    Sketcher.Constraint("Horizontal", 14),
    Sketcher.Constraint("Vertical", 15),
    Sketcher.Constraint("Horizontal", 16),
    Sketcher.Constraint("Vertical", 17),
    Sketcher.Constraint("Horizontal", 18),
    Sketcher.Constraint("Vertical", 19),
    Sketcher.Constraint("Horizontal", 20),
    Sketcher.Constraint("Vertical", 21),
    Sketcher.Constraint("Horizontal", 22),
    Sketcher.Constraint("Vertical", 23),
    Sketcher.Constraint("Symmetric", 10, 2, 21, 2, -1, 1),
    Sketcher.Constraint("Symmetric", 1, 2, 12, 2, -2),
    Sketcher.Constraint("Symmetric", 5, 2, 14, 2, -2),
    Sketcher.Constraint("Symmetric", 3, 2, 16, 2, -2),
    Sketcher.Constraint("Symmetric", 7, 2, 18, 2, -2),
    Sketcher.Constraint("Symmetric", 9, 2, 22, 2, -2),
    Sketcher.Constraint("Horizontal", 11, 2, 19, 2),
    Sketcher.Constraint("Vertical", 1, 2, 6, 2),
    Sketcher.Constraint("Vertical", 5, 2, 8, 2),
    Sketcher.Constraint("Vertical", 3, 2, 10, 2),
    Sketcher.Constraint("Equal", 18, 1),
    Sketcher.Constraint("Equal", 22, 3),
    Sketcher.Constraint("Equal", 1, 7),
    Sketcher.Constraint("Equal", 5, 9),
    Sketcher.Constraint("DistanceX", 0, 2, 0, 1, 40.0),
    Sketcher.Constraint("DistanceX", 2, 1, 2, 2, 4.0),
    Sketcher.Constraint("DistanceX", 0, 2, -1, 1, 404.0),
    Sketcher.Constraint("DistanceY", -1, 1, 0, 2, 154.0),
])
sketch9.setExpression("Constraints[62]", "Params.sketch9_width")
sketch9.setExpression("Constraints[63]", "Params.sketch9_width2")
pad9 = body.newObject("PartDesign::Pad", "Pad008")
pad9.Profile = sketch9
pad9.setExpression("Length", "Params.pad9_length")

# Sketch on YZ plane
sketch10 = body.newObject("Sketcher::SketchObject", "Sketch009")
sketch10.AttachmentSupport = (doc.getObject("YZ_Plane"), [""])
sketch10.MapMode = "FlatFace"
sketch10.AttachmentOffset = App.Placement(Vector(0, 0, -444), App.Rotation())
add_polygon(sketch10, [(36, 944), (36, 0), (-4, 0), (-4, 944)])  # lines 0-3
add_polygon(sketch10, [(114, 0), (114, 944), (154, 944), (154, 0)])  # lines 4-7
sketch10.addConstraint([
    Sketcher.Constraint("Vertical", 0),
    Sketcher.Constraint("Horizontal", 1),
    Sketcher.Constraint("Vertical", 2),
    Sketcher.Constraint("Horizontal", 3),
    Sketcher.Constraint("Vertical", 4),
    Sketcher.Constraint("Horizontal", 5),
    Sketcher.Constraint("Vertical", 6),
    Sketcher.Constraint("Horizontal", 7),
    Sketcher.Constraint("PointOnObject", 0, 2, -1),
    Sketcher.Constraint("PointOnObject", 6, 2, -1),
    Sketcher.Constraint("Horizontal", 3, 2, 4, 2),
    Sketcher.Constraint("Equal", 3, 5),
    Sketcher.Constraint("DistanceX", 1, 2, 1, 1, 40.0),
    Sketcher.Constraint("DistanceY", 0, 2, 0, 1, 944.0),
    Sketcher.Constraint("DistanceX", -1, 1, 0, 2, 36.0),
    Sketcher.Constraint("DistanceX", -1, 1, 4, 2, 114.0),
])
sketch10.setExpression("Constraints[20]", "Params.sketch10_width")
sketch10.setExpression("Constraints[21]", "Params.sketch10_height")
pocket1 = body.newObject("PartDesign::Pocket", "Pocket")
pocket1.Profile = sketch10
pocket1.setExpression("Length", "Params.pocket1_length")
pocket1.Reversed = True

# Sketch on YZ plane
sketch11 = body.newObject("Sketcher::SketchObject", "Sketch010")
sketch11.AttachmentSupport = (doc.getObject("YZ_Plane"), [""])
sketch11.MapMode = "FlatFace"
sketch11.AttachmentOffset = App.Placement(Vector(0, 0, 444), App.Rotation())
add_polygon(sketch11, [(154, 944), (-4, 944), (-4, 0), (154, 0)])  # lines 0-3
sketch11.addConstraint([
    Sketcher.Constraint("Horizontal", 0),
    Sketcher.Constraint("Vertical", 1),
    Sketcher.Constraint("Horizontal", 2),
    Sketcher.Constraint("Vertical", 3),
    Sketcher.Constraint("PointOnObject", 1, 2, -1),
    Sketcher.Constraint("DistanceX", 0, 2, 0, 1, 158.0),
    Sketcher.Constraint("DistanceY", 1, 2, 1, 1, 944.0),
    Sketcher.Constraint("DistanceX", 0, 2, -1, 1, 4.0),
])
sketch11.setExpression("Constraints[9]", "Params.sketch11_width")
sketch11.setExpression("Constraints[10]", "Params.sketch11_height")
pocket2 = body.newObject("PartDesign::Pocket", "Pocket001")
pocket2.Profile = sketch11
pocket2.setExpression("Length", "Params.pocket2_length")

# Sketch on XY plane
sketch12 = body.newObject("Sketcher::SketchObject", "Sketch011")
sketch12.AttachmentSupport = (doc.getObject("XY_Plane"), [""])
sketch12.MapMode = "FlatFace"
sketch12.AttachmentOffset = App.Placement(Vector(0, 0, -40), App.Rotation())
add_polygon(sketch12, [(-334, -104), (-434, -104), (-434, -24), (-334, -24)])  # lines 0-3
sketch12.addGeometry(Part.Circle(Vector(-344, -94, 0), Vector(0, 0, 1), 5), False)  # 4
sketch12.addGeometry(Part.Circle(Vector(-424, -94, 0), Vector(0, 0, 1), 5), False)  # 5
sketch12.addGeometry(Part.Circle(Vector(-344, -34, 0), Vector(0, 0, 1), 5), False)  # 6
sketch12.addGeometry(Part.Circle(Vector(-424, -34, 0), Vector(0, 0, 1), 5), False)  # 7
add_polygon(sketch12, [(-434, 174), (-434, 254), (-334, 254), (-334, 174)])  # lines 8-11
sketch12.addGeometry(Part.Circle(Vector(-344, 184, 0), Vector(0, 0, 1), 5), False)  # 12
sketch12.addGeometry(Part.Circle(Vector(-424, 184, 0), Vector(0, 0, 1), 5), False)  # 13
sketch12.addGeometry(Part.Circle(Vector(-344, 244, 0), Vector(0, 0, 1), 5), False)  # 14
sketch12.addGeometry(Part.Circle(Vector(-424, 244, 0), Vector(0, 0, 1), 5), False)  # 15
add_polygon(sketch12, [(434, -24), (434, -104), (334, -104), (334, -24)])  # lines 16-19
sketch12.addGeometry(Part.Circle(Vector(424, -94, 0), Vector(0, 0, 1), 5), False)  # 20
sketch12.addGeometry(Part.Circle(Vector(344, -94, 0), Vector(0, 0, 1), 5), False)  # 21
sketch12.addGeometry(Part.Circle(Vector(424, -34, 0), Vector(0, 0, 1), 5), False)  # 22
sketch12.addGeometry(Part.Circle(Vector(344, -34, 0), Vector(0, 0, 1), 5), False)  # 23
add_polygon(sketch12, [(434, 254), (434, 174), (334, 174), (334, 254)])  # lines 24-27
sketch12.addGeometry(Part.Circle(Vector(424, 184, 0), Vector(0, 0, 1), 5), False)  # 28
sketch12.addGeometry(Part.Circle(Vector(344, 184, 0), Vector(0, 0, 1), 5), False)  # 29
sketch12.addGeometry(Part.Circle(Vector(424, 244, 0), Vector(0, 0, 1), 5), False)  # 30
sketch12.addGeometry(Part.Circle(Vector(344, 244, 0), Vector(0, 0, 1), 5), False)  # 31
sketch12.addConstraint([
    Sketcher.Constraint("Horizontal", 0),
    Sketcher.Constraint("Vertical", 1),
    Sketcher.Constraint("Horizontal", 2),
    Sketcher.Constraint("Vertical", 3),
    Sketcher.Constraint("Vertical", 8),
    Sketcher.Constraint("Horizontal", 9),
    Sketcher.Constraint("Vertical", 10),
    Sketcher.Constraint("Horizontal", 11),
    Sketcher.Constraint("Vertical", 16),
    Sketcher.Constraint("Horizontal", 17),
    Sketcher.Constraint("Vertical", 18),
    Sketcher.Constraint("Horizontal", 19),
    Sketcher.Constraint("Vertical", 24),
    Sketcher.Constraint("Horizontal", 25),
    Sketcher.Constraint("Vertical", 26),
    Sketcher.Constraint("Horizontal", 27),
    Sketcher.Constraint("Equal", 4, 5),
    Sketcher.Constraint("Equal", 5, 6),
    Sketcher.Constraint("Equal", 6, 7),
    Sketcher.Constraint("Equal", 7, 12),
    Sketcher.Constraint("Equal", 12, 13),
    Sketcher.Constraint("Equal", 13, 14),
    Sketcher.Constraint("Equal", 14, 15),
    Sketcher.Constraint("Equal", 15, 20),
    Sketcher.Constraint("Equal", 20, 21),
    Sketcher.Constraint("Equal", 21, 22),
    Sketcher.Constraint("Equal", 22, 23),
    Sketcher.Constraint("Equal", 23, 28),
    Sketcher.Constraint("Equal", 28, 29),
    Sketcher.Constraint("Equal", 29, 30),
    Sketcher.Constraint("Equal", 30, 31),
    Sketcher.Constraint("Symmetric", 5, 3, 20, 3, -2),
    Sketcher.Constraint("Symmetric", 4, 3, 21, 3, -2),
    Sketcher.Constraint("Symmetric", 7, 3, 22, 3, -2),
    Sketcher.Constraint("Symmetric", 6, 3, 23, 3, -2),
    Sketcher.Constraint("Symmetric", 13, 3, 28, 3, -2),
    Sketcher.Constraint("Symmetric", 12, 3, 29, 3, -2),
    Sketcher.Constraint("Symmetric", 15, 3, 30, 3, -2),
    Sketcher.Constraint("Symmetric", 14, 3, 31, 3, -2),
    Sketcher.Constraint("Symmetric", 0, 2, 16, 2, -2),
    Sketcher.Constraint("Symmetric", 2, 2, 18, 2, -2),
    Sketcher.Constraint("Symmetric", 11, 2, 24, 2, -2),
    Sketcher.Constraint("Symmetric", 9, 2, 26, 2, -2),
    Sketcher.Constraint("Horizontal", 4, 3, 5, 3),
    Sketcher.Constraint("Horizontal", 6, 3, 7, 3),
    Sketcher.Constraint("Horizontal", 12, 3, 13, 3),
    Sketcher.Constraint("Horizontal", 14, 3, 15, 3),
    Sketcher.Constraint("Vertical", 4, 3, 6, 3),
    Sketcher.Constraint("Vertical", 5, 3, 7, 3),
    Sketcher.Constraint("Vertical", 6, 3, 12, 3),
    Sketcher.Constraint("Vertical", 7, 3, 13, 3),
    Sketcher.Constraint("Vertical", 12, 3, 14, 3),
    Sketcher.Constraint("Vertical", 13, 3, 15, 3),
    Sketcher.Constraint("Vertical", 1, 2, 8, 2),
    Sketcher.Constraint("Vertical", 3, 2, 9, 2),
    Sketcher.Constraint("Equal", 3, 8),
    Sketcher.Constraint("Diameter", 4, 10.0),
    Sketcher.Constraint("DistanceX", 0, 2, 0, 1, 100.0),
    Sketcher.Constraint("DistanceY", 1, 1, 1, 2, 80.0),
    Sketcher.Constraint("DistanceX", 5, 3, 4, 3, 80.0),
    Sketcher.Constraint("DistanceX", 0, 2, 5, 3, 10.0),
    Sketcher.Constraint("DistanceY", 0, 2, 5, 3, 10.0),
    Sketcher.Constraint("DistanceY", 7, 3, 1, 2, 10.0),
    Sketcher.Constraint("DistanceY", 15, 3, 8, 2, 10.0),
    Sketcher.Constraint("DistanceY", 10, 2, 12, 3, 10.0),
    Sketcher.Constraint("DistanceX", 4, 3, -1, 1, 344.0),
    Sketcher.Constraint("DistanceY", 4, 3, -1, 1, 94.0),
    Sketcher.Constraint("DistanceY", -1, 1, 12, 3, 184.0),
])
sketch12.setExpression("Constraints[72]", "Params.sketch12_diameter")
sketch12.setExpression("Constraints[73]", "Params.sketch12_width")
sketch12.setExpression("Constraints[74]", "Params.sketch12_height")
pad10 = body.newObject("PartDesign::Pad", "Pad009")
pad10.Profile = sketch12
pad10.setExpression("Length", "Params.pad10_length")
pad10.Reversed = True

doc.recompute()
